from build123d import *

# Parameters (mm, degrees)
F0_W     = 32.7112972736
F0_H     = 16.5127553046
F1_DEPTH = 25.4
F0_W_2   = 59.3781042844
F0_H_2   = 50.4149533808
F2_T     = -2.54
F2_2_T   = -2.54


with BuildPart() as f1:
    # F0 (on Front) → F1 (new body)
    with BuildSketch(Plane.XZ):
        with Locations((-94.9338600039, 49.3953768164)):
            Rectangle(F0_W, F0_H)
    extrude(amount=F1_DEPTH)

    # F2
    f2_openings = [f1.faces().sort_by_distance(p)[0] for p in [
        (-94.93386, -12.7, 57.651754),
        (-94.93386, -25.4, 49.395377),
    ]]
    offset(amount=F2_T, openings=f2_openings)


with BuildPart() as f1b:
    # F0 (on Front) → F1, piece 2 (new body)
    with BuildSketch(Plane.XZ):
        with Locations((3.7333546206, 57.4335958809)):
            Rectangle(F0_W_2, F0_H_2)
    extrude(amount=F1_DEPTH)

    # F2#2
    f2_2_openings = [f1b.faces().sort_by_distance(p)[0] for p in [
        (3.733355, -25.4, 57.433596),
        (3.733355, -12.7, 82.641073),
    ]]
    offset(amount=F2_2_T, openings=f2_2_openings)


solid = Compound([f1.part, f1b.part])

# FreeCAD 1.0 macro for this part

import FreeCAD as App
import Part
import Sketcher
Q = App.Units.Quantity


def faces_at(feature, points):
    """Names of the faces that lie closest to the given points."""
    faces = feature.Shape.Faces
    near = lambda p: min(range(len(faces)), key=lambda i: faces[i].distToShape(Part.Vertex(*p))[0])
    return sorted({f"Face{near(p) + 1}" for p in points})


def add_polygon(sketch, points):
    """Adds a closed chain of lines whose ends are joined by coincident constraints."""
    first, n = sketch.GeometryCount, len(points)
    for a, b in zip(points, points[1:] + points[:1]):
        sketch.addGeometry(Part.LineSegment(App.Vector(*a, 0), App.Vector(*b, 0)), False)
    for i in range(n):
        sketch.addConstraint(Sketcher.Constraint("Coincident", first + i, 2, first + (i + 1) % n, 1))

doc = App.newDocument("Part")
body = doc.addObject("PartDesign::Body", "Body")

sketch1 = body.newObject("Sketcher::SketchObject", "Sketch")
sketch1.AttachmentSupport = (doc.getObject("XZ_Plane"), [""])
sketch1.MapMode = "FlatFace"
add_polygon(sketch1, [(-111.289509, 57.651754), (-111.289509, 41.138999), (-78.578211, 41.138999), (-78.578211, 57.651754)])
sketch1.addConstraint(Sketcher.Constraint("Vertical", 0))
sketch1.addConstraint(Sketcher.Constraint("Horizontal", 1))
sketch1.addConstraint(Sketcher.Constraint("Vertical", 2))
sketch1.addConstraint(Sketcher.Constraint("Horizontal", 3))
sketch1.addConstraint(Sketcher.Constraint("DistanceY", -1, 1, 0, 2, Q("41.138999 mm")))
sketch1.addConstraint(Sketcher.Constraint("DistanceX", 1, 1, 1, 2, Q("32.711297 mm")))
sketch1.addConstraint(Sketcher.Constraint("DistanceY", 0, 2, 0, 1, Q("16.512755 mm")))
sketch1.addConstraint(Sketcher.Constraint("DistanceX", 0, 2, -1, 1, Q("111.289509 mm")))
pad1 = body.newObject("PartDesign::Pad", "Pad")
pad1.Profile = sketch1
pad1.Length = Q("1 in")
doc.recompute()

thickness = body.newObject("PartDesign::Thickness", "Thickness")
thickness.Base = (pad1, faces_at(pad1, [(-94.934, -12.7, 57.652), (-94.934, -25.4, 49.395)]))
thickness.Value = Q("0.1 in")
thickness.Reversed = True
thickness.Join = "Arc"
body2 = doc.addObject("PartDesign::Body", "Body001")

sketch2 = body2.newObject("Sketcher::SketchObject", "Sketch001")
sketch2.AttachmentSupport = (doc.getObject("XZ_Plane001"), [""])
sketch2.MapMode = "FlatFace"
add_polygon(sketch2, [(-25.955698, 82.641073), (-25.955698, 32.226119), (33.422407, 32.226119), (33.422407, 82.641073)])
sketch2.addConstraint(Sketcher.Constraint("Vertical", 0))
sketch2.addConstraint(Sketcher.Constraint("Horizontal", 1))
sketch2.addConstraint(Sketcher.Constraint("Vertical", 2))
sketch2.addConstraint(Sketcher.Constraint("Horizontal", 3))
sketch2.addConstraint(Sketcher.Constraint("DistanceX", 1, 1, 1, 2, Q("59.378104 mm")))
sketch2.addConstraint(Sketcher.Constraint("DistanceY", 0, 2, 0, 1, Q("50.414953 mm")))
sketch2.addConstraint(Sketcher.Constraint("DistanceY", -1, 1, 0, 2, Q("32.226119 mm")))
sketch2.addConstraint(Sketcher.Constraint("DistanceX", 0, 2, -1, 1, Q("25.955698 mm")))
pad2 = body2.newObject("PartDesign::Pad", "Pad001")
pad2.Profile = sketch2
pad2.Length = Q("1 in")
doc.recompute()

thickness2 = body2.newObject("PartDesign::Thickness", "Thickness001")
thickness2.Base = (pad2, faces_at(pad2, [(3.733, -25.4, 57.434), (3.733, -12.7, 82.641)]))
thickness2.Value = Q("0.1 in")
thickness2.Reversed = True
thickness2.Join = "Arc"

doc.recompute()
